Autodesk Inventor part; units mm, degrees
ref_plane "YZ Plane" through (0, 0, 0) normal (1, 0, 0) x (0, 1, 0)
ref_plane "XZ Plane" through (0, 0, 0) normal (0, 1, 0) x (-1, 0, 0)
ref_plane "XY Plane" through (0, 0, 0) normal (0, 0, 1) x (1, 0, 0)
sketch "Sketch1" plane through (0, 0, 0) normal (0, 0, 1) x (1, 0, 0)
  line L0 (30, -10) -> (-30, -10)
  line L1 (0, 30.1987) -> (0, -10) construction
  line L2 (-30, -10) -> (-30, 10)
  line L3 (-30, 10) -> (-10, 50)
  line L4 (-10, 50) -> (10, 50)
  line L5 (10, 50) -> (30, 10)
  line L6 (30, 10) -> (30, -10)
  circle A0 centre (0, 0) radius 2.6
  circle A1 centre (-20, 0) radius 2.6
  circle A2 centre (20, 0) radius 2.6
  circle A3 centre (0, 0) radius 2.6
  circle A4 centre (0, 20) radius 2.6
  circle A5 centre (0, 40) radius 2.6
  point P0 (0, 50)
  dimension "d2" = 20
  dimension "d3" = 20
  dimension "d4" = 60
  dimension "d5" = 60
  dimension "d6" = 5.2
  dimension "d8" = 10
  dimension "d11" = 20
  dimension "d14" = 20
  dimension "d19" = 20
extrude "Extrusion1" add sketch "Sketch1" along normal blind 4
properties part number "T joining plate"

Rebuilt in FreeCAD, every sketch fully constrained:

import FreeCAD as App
import Part
import Sketcher

doc = App.newDocument("Part")
body = doc.addObject("PartDesign::Body", "Body")

# Sketch on XY plane
sketch1 = doc.addObject("Sketcher::SketchObject", "Sketch")
body.addObject(sketch1)
sketch1.AttachmentSupport = (doc.XY_Plane, [""])
sketch1.MapMode = "FlatFace"
sketch1.addGeometry([
    Part.LineSegment(App.Vector(-30, -10, 0), App.Vector(30, -10, 0)),  # 0
    Part.LineSegment(App.Vector(30, -10, 0), App.Vector(30, 10, 0)),  # 1
    Part.LineSegment(App.Vector(30, 10, 0), App.Vector(10, 50, 0)),  # 2
    Part.LineSegment(App.Vector(10, 50, 0), App.Vector(-10, 50, 0)),  # 3
    Part.LineSegment(App.Vector(-10, 50, 0), App.Vector(-30, 10, 0)),  # 4
    Part.LineSegment(App.Vector(-30, 10, 0), App.Vector(-30, -10, 0)),  # 5
    Part.Circle(App.Vector(-20, 0, 0), App.Vector(0, 0, 1), 2.6),  # 6
    Part.Circle(App.Vector(0, 0, 0), App.Vector(0, 0, 1), 2.6),  # 7
    Part.Circle(App.Vector(20, 0, 0), App.Vector(0, 0, 1), 2.6),  # 8
    Part.Circle(App.Vector(0, 20, 0), App.Vector(0, 0, 1), 2.6),  # 9
    Part.Circle(App.Vector(0, 40, 0), App.Vector(0, 0, 1), 2.6),  # 10
], False)
sketch1.addConstraint([
    Sketcher.Constraint("Coincident", 0, 2, 1, 1),
    Sketcher.Constraint("Coincident", 1, 2, 2, 1),
    Sketcher.Constraint("Coincident", 2, 2, 3, 1),
    Sketcher.Constraint("Coincident", 3, 2, 4, 1),
    Sketcher.Constraint("Coincident", 4, 2, 5, 1),
    Sketcher.Constraint("Coincident", 5, 2, 0, 1),
    Sketcher.Constraint("Horizontal", 0),
    Sketcher.Constraint("Vertical", 1),
    Sketcher.Constraint("Horizontal", 3),
    Sketcher.Constraint("Vertical", 5),
    Sketcher.Constraint("Coincident", 7, 3, -1, 1),
    Sketcher.Constraint("Equal", 6, 7),
    Sketcher.Constraint("Equal", 7, 8),
    Sketcher.Constraint("Equal", 8, 9),
    Sketcher.Constraint("Equal", 9, 10),
    Sketcher.Constraint("Symmetric", 6, 3, 8, 3, -1, 1),
    Sketcher.Constraint("Symmetric", 0, 2, 4, 2, -1, 1),
    Sketcher.Constraint("PointOnObject", 6, 3, -1),
    Sketcher.Constraint("PointOnObject", 9, 3, -2),
    Sketcher.Constraint("PointOnObject", 10, 3, -2),
    Sketcher.Constraint("Horizontal", 1, 2, 4, 2),
    Sketcher.Constraint("Equal", 3, 1),
    Sketcher.Constraint("Equal", 2, 4),
    Sketcher.Constraint("Diameter", 6, 5.2),
    Sketcher.Constraint("DistanceX", 0, 1, 0, 2, 60.0),
    Sketcher.Constraint("DistanceX", 3, 2, 3, 1, 20.0),
    Sketcher.Constraint("DistanceX", 6, 3, -1, 1, 20.0),
    Sketcher.Constraint("DistanceY", -1, 1, 9, 3, 20.0),
    Sketcher.Constraint("DistanceY", 9, 3, 10, 3, 20.0),
    Sketcher.Constraint("DistanceY", 10, 3, 2, 2, 10.0),
])
pad1 = doc.addObject("PartDesign::Pad", "Pad")
body.addObject(pad1)
pad1.Profile = sketch1
pad1.Length = 4

doc.recompute()
